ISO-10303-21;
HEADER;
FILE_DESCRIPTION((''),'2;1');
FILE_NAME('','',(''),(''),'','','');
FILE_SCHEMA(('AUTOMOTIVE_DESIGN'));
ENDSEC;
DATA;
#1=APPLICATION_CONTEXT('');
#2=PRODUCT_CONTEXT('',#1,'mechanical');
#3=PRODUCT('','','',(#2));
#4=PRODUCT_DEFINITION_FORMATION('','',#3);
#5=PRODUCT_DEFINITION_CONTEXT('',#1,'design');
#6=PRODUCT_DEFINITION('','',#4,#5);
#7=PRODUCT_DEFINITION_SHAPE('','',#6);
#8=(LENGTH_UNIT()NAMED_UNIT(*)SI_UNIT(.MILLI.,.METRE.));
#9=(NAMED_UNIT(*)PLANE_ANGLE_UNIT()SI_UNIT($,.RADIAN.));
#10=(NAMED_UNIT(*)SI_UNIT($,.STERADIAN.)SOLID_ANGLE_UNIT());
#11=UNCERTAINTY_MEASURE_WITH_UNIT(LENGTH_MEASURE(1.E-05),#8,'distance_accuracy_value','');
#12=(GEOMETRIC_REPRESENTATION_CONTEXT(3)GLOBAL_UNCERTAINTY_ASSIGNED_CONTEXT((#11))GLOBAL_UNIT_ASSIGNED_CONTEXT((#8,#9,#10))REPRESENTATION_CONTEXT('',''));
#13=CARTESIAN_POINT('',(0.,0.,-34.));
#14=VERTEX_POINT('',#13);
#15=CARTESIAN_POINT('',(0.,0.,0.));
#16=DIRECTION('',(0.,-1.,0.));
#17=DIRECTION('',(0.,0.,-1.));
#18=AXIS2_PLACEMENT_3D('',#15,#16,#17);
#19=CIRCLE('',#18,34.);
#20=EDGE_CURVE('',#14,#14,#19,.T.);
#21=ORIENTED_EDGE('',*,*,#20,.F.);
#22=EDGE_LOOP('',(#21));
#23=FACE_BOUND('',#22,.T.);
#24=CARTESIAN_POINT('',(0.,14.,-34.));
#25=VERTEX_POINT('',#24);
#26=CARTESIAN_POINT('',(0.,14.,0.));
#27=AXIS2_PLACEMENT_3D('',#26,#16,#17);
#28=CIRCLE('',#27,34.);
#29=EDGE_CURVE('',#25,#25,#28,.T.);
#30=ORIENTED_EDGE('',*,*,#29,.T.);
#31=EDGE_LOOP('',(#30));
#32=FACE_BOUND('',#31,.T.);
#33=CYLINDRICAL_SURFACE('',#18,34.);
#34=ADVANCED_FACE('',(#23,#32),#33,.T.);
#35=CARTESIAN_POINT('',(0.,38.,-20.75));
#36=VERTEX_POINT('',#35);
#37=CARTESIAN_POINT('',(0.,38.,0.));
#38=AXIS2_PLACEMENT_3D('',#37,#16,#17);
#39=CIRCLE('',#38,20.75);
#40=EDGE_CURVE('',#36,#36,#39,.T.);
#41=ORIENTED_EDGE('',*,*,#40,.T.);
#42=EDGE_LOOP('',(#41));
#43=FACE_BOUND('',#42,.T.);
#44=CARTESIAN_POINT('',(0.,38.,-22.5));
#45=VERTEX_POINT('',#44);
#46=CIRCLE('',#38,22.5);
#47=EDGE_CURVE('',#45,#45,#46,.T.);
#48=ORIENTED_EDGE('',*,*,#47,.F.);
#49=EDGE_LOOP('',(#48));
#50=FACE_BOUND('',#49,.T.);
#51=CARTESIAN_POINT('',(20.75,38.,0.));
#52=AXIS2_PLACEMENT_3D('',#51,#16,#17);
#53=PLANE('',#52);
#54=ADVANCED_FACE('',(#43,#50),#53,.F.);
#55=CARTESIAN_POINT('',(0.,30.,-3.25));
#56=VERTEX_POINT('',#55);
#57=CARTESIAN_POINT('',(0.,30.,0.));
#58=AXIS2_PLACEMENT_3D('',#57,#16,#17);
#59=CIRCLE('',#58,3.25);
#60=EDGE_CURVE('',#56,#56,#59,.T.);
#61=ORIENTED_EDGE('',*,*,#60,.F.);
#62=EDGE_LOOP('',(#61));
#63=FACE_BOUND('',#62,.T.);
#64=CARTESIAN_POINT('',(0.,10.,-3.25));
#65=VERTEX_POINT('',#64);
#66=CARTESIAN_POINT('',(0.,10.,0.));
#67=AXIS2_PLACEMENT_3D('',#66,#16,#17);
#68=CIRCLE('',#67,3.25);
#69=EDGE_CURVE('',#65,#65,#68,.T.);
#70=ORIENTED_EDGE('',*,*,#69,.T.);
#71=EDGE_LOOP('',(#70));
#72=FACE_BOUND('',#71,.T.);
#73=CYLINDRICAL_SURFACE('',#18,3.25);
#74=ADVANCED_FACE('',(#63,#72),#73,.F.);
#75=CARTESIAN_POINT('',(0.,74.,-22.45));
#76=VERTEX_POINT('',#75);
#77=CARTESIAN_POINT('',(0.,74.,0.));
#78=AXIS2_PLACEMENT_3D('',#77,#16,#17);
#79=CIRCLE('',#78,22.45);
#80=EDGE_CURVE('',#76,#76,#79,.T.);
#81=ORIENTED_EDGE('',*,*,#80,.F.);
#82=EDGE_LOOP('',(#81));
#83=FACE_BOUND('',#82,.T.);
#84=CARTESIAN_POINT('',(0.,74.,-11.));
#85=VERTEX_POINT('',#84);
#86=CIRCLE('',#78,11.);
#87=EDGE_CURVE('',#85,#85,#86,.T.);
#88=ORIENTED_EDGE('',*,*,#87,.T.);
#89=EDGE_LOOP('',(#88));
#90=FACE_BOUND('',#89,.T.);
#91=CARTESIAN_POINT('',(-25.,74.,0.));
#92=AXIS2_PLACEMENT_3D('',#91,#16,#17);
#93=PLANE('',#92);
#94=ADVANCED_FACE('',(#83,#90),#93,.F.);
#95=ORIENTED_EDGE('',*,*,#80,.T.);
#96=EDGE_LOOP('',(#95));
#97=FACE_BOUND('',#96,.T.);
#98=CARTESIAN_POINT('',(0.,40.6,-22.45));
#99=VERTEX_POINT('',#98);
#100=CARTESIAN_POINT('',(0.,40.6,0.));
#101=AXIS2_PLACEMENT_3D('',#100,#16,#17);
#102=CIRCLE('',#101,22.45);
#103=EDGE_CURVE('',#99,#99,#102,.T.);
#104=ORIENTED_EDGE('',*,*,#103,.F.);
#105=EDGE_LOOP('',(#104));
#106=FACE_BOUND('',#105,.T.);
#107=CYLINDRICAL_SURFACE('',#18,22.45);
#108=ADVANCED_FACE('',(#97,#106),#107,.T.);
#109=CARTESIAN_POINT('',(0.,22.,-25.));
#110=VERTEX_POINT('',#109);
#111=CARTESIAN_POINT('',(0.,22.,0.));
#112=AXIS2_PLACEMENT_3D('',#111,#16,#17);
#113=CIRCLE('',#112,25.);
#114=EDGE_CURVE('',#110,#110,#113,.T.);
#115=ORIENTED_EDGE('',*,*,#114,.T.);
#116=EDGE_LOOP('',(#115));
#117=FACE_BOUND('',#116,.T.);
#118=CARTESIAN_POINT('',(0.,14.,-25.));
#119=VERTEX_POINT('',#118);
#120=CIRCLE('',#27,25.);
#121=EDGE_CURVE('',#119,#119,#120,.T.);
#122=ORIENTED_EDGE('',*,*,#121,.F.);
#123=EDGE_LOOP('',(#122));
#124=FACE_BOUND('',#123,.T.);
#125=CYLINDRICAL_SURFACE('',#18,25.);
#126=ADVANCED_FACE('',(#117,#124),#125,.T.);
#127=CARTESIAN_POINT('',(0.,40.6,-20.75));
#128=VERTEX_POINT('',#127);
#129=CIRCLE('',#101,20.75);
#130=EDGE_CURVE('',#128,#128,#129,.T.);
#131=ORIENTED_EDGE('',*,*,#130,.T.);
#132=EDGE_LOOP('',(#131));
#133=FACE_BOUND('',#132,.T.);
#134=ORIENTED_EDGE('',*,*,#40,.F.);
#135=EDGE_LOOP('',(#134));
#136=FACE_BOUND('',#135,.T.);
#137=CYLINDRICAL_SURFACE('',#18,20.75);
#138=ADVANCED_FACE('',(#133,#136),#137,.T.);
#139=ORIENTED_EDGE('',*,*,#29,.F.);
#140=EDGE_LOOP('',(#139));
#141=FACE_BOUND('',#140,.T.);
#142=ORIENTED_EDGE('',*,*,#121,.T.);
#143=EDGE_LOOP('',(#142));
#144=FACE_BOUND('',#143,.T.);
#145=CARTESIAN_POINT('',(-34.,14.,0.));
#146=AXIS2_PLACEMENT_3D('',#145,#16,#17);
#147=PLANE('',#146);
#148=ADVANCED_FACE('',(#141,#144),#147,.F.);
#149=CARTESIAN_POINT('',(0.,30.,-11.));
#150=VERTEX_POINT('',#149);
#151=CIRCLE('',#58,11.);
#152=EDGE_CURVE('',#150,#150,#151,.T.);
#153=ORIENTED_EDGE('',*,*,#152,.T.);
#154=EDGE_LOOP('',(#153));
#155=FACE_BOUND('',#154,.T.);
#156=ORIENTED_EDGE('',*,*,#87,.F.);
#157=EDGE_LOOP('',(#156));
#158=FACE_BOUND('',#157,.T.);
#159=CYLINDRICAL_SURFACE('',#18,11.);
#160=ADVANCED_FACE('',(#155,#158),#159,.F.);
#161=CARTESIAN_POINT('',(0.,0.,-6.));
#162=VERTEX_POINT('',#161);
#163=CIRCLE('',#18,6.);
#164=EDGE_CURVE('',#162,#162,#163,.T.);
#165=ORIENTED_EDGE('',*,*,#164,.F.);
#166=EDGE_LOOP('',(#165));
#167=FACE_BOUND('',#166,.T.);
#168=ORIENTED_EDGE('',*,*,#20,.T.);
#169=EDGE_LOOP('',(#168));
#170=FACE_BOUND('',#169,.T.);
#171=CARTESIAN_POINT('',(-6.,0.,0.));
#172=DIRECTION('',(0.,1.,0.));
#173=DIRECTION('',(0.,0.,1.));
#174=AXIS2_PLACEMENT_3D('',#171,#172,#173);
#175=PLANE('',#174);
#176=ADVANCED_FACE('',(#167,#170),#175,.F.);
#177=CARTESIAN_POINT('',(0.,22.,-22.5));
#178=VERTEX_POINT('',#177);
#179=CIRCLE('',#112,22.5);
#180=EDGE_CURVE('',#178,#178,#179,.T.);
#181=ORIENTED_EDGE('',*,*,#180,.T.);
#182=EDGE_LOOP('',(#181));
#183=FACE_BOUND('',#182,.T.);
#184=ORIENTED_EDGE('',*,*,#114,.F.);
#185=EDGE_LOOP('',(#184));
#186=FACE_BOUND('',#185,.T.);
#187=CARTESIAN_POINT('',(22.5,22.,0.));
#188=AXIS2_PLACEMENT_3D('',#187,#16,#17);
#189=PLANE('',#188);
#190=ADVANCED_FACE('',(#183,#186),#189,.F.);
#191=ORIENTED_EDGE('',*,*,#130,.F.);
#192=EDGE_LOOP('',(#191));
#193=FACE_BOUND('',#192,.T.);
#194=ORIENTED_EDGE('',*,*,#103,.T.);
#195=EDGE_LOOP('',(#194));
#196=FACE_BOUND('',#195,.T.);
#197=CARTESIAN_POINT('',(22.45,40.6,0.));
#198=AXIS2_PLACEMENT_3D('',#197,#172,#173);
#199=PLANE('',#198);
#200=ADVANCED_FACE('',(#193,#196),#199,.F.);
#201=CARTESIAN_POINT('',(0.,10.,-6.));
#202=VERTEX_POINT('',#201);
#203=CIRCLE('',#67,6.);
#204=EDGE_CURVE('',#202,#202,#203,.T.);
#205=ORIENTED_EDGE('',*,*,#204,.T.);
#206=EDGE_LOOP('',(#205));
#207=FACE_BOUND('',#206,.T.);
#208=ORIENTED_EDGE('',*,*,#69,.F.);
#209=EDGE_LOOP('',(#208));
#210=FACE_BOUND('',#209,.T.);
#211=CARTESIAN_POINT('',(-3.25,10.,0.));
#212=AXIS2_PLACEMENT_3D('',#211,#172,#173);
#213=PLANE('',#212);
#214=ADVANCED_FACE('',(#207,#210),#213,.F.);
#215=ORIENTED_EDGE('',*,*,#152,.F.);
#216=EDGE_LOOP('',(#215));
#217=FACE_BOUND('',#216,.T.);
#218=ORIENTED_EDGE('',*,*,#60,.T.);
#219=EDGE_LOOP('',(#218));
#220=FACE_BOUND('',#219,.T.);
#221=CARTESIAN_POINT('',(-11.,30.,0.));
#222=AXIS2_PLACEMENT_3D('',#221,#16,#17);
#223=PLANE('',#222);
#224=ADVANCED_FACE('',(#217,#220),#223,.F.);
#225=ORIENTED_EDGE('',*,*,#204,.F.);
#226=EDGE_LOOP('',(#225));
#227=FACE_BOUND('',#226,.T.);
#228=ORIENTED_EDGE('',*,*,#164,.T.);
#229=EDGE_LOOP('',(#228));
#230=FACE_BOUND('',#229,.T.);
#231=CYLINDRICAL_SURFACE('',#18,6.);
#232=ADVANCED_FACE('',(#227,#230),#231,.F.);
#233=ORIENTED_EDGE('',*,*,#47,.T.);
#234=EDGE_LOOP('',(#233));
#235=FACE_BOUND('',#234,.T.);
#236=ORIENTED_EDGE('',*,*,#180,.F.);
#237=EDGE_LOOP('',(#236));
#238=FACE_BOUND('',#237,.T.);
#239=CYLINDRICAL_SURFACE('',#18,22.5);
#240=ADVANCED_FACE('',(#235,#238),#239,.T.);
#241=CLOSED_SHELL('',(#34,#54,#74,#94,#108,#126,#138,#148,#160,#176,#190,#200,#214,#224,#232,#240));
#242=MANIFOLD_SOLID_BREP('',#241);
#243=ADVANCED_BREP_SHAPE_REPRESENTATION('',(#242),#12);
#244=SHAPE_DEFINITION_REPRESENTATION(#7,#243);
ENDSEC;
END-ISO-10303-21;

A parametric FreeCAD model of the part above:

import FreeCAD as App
import Part
import Sketcher

V = App.Vector


def add_polygon(sketch, points):
    """Adds a closed chain of lines whose ends are joined by coincident constraints."""
    first, n = sketch.GeometryCount, len(points)
    for a, b in zip(points, points[1:] + points[:1]):
        sketch.addGeometry(Part.LineSegment(App.Vector(*a, 0), App.Vector(*b, 0)), False)
    for i in range(n):
        sketch.addConstraint(Sketcher.Constraint("Coincident", first + i, 2, first + (i + 1) % n, 1))

doc = App.newDocument("Part")
body = doc.addObject("PartDesign::Body", "Body")

# Sketch on XY plane
sketch1 = body.newObject("Sketcher::SketchObject", "Sketch")
sketch1.AttachmentSupport = (doc.getObject("XY_Plane"), [""])
sketch1.MapMode = "FlatFace"
add_polygon(sketch1, [(-34, 0), (-6, 0), (-6, 10), (-3.2, 10), (-3.2, 30), (-11, 30), (-11, 74), (-25, 74), (-25, 14), (-34, 14)])  # lines 0-9
sketch1.addConstraint(Sketcher.Constraint("Horizontal", 0))
sketch1.addConstraint(Sketcher.Constraint("Vertical", 1))
sketch1.addConstraint(Sketcher.Constraint("Horizontal", 2))
sketch1.addConstraint(Sketcher.Constraint("Vertical", 3))
sketch1.addConstraint(Sketcher.Constraint("Horizontal", 4))
sketch1.addConstraint(Sketcher.Constraint("Vertical", 5))
sketch1.addConstraint(Sketcher.Constraint("Horizontal", 6))
sketch1.addConstraint(Sketcher.Constraint("Vertical", 7))
sketch1.addConstraint(Sketcher.Constraint("Horizontal", 8))
sketch1.addConstraint(Sketcher.Constraint("Vertical", 9))
sketch1.addConstraint(Sketcher.Constraint("PointOnObject", 0, 2, -1))
sketch1.addConstraint(Sketcher.Constraint("Equal", 6, 9))
sketch1.addConstraint(Sketcher.Constraint("DistanceX", 0, 1, 0, 2, 28.0))
sketch1.addConstraint(Sketcher.Constraint("DistanceX", 6, 2, 6, 1, 14.0))
sketch1.addConstraint(Sketcher.Constraint("DistanceX", 8, 2, 8, 1, 9.0))
sketch1.addConstraint(Sketcher.Constraint("DistanceY", 1, 1, 1, 2, 10.0))
sketch1.addConstraint(Sketcher.Constraint("DistanceY", 3, 1, 3, 2, 20.0))
sketch1.addConstraint(Sketcher.Constraint("DistanceY", 5, 1, 5, 2, 44.0))
sketch1.addConstraint(Sketcher.Constraint("DistanceX", 0, 2, -1, 1, 6.0))
sketch1.addConstraint(Sketcher.Constraint("DistanceX", 2, 1, 2, 2, 2.75))
revolution = body.newObject("PartDesign::Revolution", "Revolution")
revolution.Profile = sketch1
revolution.ReferenceAxis = (sketch1, ["V_Axis"])
revolution.Angle = 360

# Sketch on XY plane
sketch2 = body.newObject("Sketcher::SketchObject", "Sketch001")
sketch2.AttachmentSupport = (doc.getObject("XY_Plane"), [""])
sketch2.MapMode = "FlatFace"
add_polygon(sketch2, [(22.4, 74), (22.4, 40.6), (20.8, 40.6), (20.8, 38), (22.5, 38), (22.5, 22), (25, 22), (25, 74)])  # lines 0-7
sketch2.addConstraint(Sketcher.Constraint("Vertical", 0))
sketch2.addConstraint(Sketcher.Constraint("Horizontal", 1))
sketch2.addConstraint(Sketcher.Constraint("Vertical", 2))
sketch2.addConstraint(Sketcher.Constraint("Horizontal", 3))
sketch2.addConstraint(Sketcher.Constraint("Vertical", 4))
sketch2.addConstraint(Sketcher.Constraint("Horizontal", 5))
sketch2.addConstraint(Sketcher.Constraint("Vertical", 6))
sketch2.addConstraint(Sketcher.Constraint("Horizontal", 7))
sketch2.addConstraint(Sketcher.Constraint("DistanceY", 4, 2, 4, 1, 16.0))
sketch2.addConstraint(Sketcher.Constraint("DistanceY", 6, 1, 6, 2, 52.0))
sketch2.addConstraint(Sketcher.Constraint("DistanceX", 1, 2, 1, 1, 1.7))
sketch2.addConstraint(Sketcher.Constraint("DistanceX", 5, 1, 5, 2, 2.5))
sketch2.addConstraint(Sketcher.Constraint("DistanceY", 0, 2, 0, 1, 33.4))
sketch2.addConstraint(Sketcher.Constraint("DistanceY", -1, 1, 2, 2, 38.0))
sketch2.addConstraint(Sketcher.Constraint("DistanceX", -1, 1, 5, 2, 25.0))
sketch2.addConstraint(Sketcher.Constraint("DistanceX", 3, 1, 3, 2, 1.75))
groove = body.newObject("PartDesign::Groove", "Groove")
groove.Profile = sketch2
groove.ReferenceAxis = (sketch2, ["V_Axis"])
groove.Angle = 360

doc.recompute()
